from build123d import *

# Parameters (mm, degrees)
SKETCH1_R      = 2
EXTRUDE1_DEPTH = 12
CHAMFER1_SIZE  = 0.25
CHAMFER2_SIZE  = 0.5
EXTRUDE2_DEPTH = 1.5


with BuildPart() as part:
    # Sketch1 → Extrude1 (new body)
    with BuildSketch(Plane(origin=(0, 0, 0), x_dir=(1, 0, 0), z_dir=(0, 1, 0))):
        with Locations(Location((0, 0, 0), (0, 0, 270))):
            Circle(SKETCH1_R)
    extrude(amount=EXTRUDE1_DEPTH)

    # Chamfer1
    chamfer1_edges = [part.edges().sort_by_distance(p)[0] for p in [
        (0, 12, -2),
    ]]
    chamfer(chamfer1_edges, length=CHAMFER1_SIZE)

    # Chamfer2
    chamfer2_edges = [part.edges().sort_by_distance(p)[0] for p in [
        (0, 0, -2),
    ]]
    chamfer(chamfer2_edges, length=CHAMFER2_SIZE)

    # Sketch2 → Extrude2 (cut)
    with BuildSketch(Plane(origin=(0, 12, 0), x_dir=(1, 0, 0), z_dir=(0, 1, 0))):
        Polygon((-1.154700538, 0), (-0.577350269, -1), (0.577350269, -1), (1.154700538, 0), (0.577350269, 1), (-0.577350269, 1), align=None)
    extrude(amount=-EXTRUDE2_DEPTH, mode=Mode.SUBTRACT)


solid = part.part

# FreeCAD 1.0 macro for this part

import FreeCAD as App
import Part
import Sketcher
Q = App.Units.Quantity


def edges_at(feature, points):
    """Names of the edges that pass closest to the given points."""
    edges = feature.Shape.Edges
    near = lambda p: min(range(len(edges)), key=lambda i: edges[i].distToShape(Part.Vertex(*p))[0])
    return sorted({f"Edge{near(p) + 1}" for p in points})


def add_polygon(sketch, points):
    """Adds a closed chain of lines whose ends are joined by coincident constraints."""
    first, n = sketch.GeometryCount, len(points)
    for a, b in zip(points, points[1:] + points[:1]):
        sketch.addGeometry(Part.LineSegment(App.Vector(*a, 0), App.Vector(*b, 0)), False)
    for i in range(n):
        sketch.addConstraint(Sketcher.Constraint("Coincident", first + i, 2, first + (i + 1) % n, 1))

doc = App.newDocument("Part")
body = doc.addObject("PartDesign::Body", "Body")

# Sketch on XZ plane
sketch1 = body.newObject("Sketcher::SketchObject", "Sketch")
sketch1.AttachmentSupport = (doc.getObject("XZ_Plane"), [""])
sketch1.MapMode = "FlatFace"
sketch1.addGeometry(Part.Circle(App.Vector(0, 0, 0), App.Vector(0, 0, 1), 2), False)
sketch1.addConstraint(Sketcher.Constraint("Coincident", 0, 3, -1, 1))
sketch1.addConstraint(Sketcher.Constraint("Diameter", 0, 4.0))
pad1 = body.newObject("PartDesign::Pad", "Pad")
pad1.Profile = sketch1
pad1.Length = 12
pad1.Reversed = True
doc.recompute()

chamfer = body.newObject("PartDesign::Chamfer", "Chamfer")
chamfer.Base = (pad1, edges_at(pad1, [(0, 12, -2)]))
chamfer.Size = 0.25
doc.recompute()

chamfer2 = body.newObject("PartDesign::Chamfer", "Chamfer001")
chamfer2.Base = (chamfer, edges_at(chamfer, [(0, 0, -2)]))
chamfer2.Size = 0.5

# Sketch on XZ plane
sketch2 = body.newObject("Sketcher::SketchObject", "Sketch001")
sketch2.AttachmentSupport = (doc.getObject("XZ_Plane"), [""])
sketch2.MapMode = "FlatFace"
sketch2.AttachmentOffset = App.Placement(App.Vector(0, 0, -12), App.Rotation())
add_polygon(sketch2, [(-1.2, 0), (-0.6, 1), (0.6, 1), (1.2, 0), (0.6, -1), (-0.6, -1)])  # lines 0-5
sketch2.addConstraint(Sketcher.Constraint("Horizontal", 1))
sketch2.addConstraint(Sketcher.Constraint("Horizontal", 4))
sketch2.addConstraint(Sketcher.Constraint("Symmetric", 0, 2, 3, 2, -1, 1))
sketch2.addConstraint(Sketcher.Constraint("Symmetric", 2, 2, 5, 2, -1, 1))
sketch2.addConstraint(Sketcher.Constraint("PointOnObject", 2, 2, -1))
sketch2.addConstraint(Sketcher.Constraint("Parallel", 2, 5))
sketch2.addConstraint(Sketcher.Constraint("Vertical", 1, 2, 3, 2))
sketch2.addConstraint(Sketcher.Constraint("Angle", 0, Q("60 deg")))
sketch2.addConstraint(Sketcher.Constraint("DistanceY", -1, 1, 0, 2, 1.0))
sketch2.addConstraint(Sketcher.Constraint("DistanceX", 1, 1, 1, 2, 1.154701))
pocket1 = body.newObject("PartDesign::Pocket", "Pocket")
pocket1.Profile = sketch2
pocket1.Length = 1.5
pocket1.Reversed = True

doc.recompute()
